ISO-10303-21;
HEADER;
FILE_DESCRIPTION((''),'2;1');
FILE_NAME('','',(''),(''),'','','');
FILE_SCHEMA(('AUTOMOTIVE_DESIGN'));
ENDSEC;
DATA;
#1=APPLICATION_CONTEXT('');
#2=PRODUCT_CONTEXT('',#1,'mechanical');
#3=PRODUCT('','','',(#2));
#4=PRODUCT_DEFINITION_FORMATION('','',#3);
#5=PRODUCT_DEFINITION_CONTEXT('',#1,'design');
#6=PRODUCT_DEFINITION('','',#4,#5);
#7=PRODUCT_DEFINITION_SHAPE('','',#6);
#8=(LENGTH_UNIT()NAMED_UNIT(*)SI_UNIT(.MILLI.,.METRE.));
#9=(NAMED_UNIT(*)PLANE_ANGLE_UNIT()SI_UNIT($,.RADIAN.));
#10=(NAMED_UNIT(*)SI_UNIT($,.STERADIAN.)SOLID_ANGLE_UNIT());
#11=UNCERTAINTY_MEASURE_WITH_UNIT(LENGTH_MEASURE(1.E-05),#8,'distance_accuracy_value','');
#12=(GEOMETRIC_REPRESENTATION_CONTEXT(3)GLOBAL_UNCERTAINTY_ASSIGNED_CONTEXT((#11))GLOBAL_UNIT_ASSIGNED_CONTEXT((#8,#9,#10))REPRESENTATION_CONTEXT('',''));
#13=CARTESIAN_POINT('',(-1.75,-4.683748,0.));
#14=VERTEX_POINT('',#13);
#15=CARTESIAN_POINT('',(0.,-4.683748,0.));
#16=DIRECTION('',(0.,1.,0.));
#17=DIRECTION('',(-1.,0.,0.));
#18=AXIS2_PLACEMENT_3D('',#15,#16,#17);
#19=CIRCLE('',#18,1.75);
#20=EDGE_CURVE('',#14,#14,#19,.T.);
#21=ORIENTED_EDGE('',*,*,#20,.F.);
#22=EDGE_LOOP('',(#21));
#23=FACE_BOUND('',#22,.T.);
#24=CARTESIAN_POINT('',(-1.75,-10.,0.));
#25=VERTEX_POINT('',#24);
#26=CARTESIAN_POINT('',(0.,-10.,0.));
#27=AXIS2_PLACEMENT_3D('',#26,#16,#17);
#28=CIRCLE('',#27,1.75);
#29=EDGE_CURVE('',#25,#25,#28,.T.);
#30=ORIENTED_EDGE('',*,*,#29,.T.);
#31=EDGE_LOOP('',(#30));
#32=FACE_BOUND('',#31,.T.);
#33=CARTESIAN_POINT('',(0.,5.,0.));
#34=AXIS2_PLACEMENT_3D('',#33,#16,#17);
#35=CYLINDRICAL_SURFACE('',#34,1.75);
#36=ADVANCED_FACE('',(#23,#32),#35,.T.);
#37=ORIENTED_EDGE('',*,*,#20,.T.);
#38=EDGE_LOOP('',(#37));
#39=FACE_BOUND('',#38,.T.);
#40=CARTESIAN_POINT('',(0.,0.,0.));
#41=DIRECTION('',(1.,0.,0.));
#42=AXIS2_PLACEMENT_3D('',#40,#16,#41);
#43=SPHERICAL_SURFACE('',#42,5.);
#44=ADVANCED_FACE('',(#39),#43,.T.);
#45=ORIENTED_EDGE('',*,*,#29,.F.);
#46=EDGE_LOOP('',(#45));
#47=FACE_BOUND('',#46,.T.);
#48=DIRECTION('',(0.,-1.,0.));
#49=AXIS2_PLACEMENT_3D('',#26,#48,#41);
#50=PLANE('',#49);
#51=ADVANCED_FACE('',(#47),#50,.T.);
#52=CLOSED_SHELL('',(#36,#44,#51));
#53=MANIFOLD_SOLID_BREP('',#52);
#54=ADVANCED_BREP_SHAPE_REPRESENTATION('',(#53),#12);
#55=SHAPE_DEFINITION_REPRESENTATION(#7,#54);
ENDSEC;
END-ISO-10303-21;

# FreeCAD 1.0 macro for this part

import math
import FreeCAD as App
import Part
import Sketcher

V = App.Vector

doc = App.newDocument("Part")
body = doc.addObject("PartDesign::Body", "Body")

# Sketch on XY plane
sketch1 = body.newObject("Sketcher::SketchObject", "Sketch")
sketch1.AttachmentSupport = (doc.getObject("XY_Plane"), [""])
sketch1.MapMode = "FlatFace"
sketch1.addGeometry([
    Part.LineSegment(V(0, -10, 0), V(0, 5, 0)),
    Part.ArcOfCircle(Part.Circle(V(0, 0, 0), V(0, 0, 1), 5), math.radians(90), math.radians(250)),
    Part.LineSegment(V(-1.8, -4.7, 0), V(-1.8, -10, 0)),
    Part.LineSegment(V(-1.8, -10, 0), V(0, -10, 0)),
], False)
sketch1.addConstraint([
    Sketcher.Constraint("Coincident", 0, 2, 1, 1),
    Sketcher.Constraint("Coincident", 1, 2, 2, 1),
    Sketcher.Constraint("Coincident", 2, 2, 3, 1),
    Sketcher.Constraint("Coincident", 3, 2, 0, 1),
    Sketcher.Constraint("Vertical", 0),
    Sketcher.Constraint("Vertical", 2),
    Sketcher.Constraint("Horizontal", 3),
    Sketcher.Constraint("Coincident", 1, 3, -1, 1),
    Sketcher.Constraint("PointOnObject", 0, 2, -2),
    Sketcher.Constraint("Radius", 1, 5.0),
    Sketcher.Constraint("DistanceY", 0, 1, 0, 2, 15.0),
    Sketcher.Constraint("DistanceX", 3, 1, 3, 2, 1.75),
])
revolution = body.newObject("PartDesign::Revolution", "Revolution")
revolution.Profile = sketch1
revolution.ReferenceAxis = (sketch1, ["V_Axis"])
revolution.Angle = 360

doc.recompute()
